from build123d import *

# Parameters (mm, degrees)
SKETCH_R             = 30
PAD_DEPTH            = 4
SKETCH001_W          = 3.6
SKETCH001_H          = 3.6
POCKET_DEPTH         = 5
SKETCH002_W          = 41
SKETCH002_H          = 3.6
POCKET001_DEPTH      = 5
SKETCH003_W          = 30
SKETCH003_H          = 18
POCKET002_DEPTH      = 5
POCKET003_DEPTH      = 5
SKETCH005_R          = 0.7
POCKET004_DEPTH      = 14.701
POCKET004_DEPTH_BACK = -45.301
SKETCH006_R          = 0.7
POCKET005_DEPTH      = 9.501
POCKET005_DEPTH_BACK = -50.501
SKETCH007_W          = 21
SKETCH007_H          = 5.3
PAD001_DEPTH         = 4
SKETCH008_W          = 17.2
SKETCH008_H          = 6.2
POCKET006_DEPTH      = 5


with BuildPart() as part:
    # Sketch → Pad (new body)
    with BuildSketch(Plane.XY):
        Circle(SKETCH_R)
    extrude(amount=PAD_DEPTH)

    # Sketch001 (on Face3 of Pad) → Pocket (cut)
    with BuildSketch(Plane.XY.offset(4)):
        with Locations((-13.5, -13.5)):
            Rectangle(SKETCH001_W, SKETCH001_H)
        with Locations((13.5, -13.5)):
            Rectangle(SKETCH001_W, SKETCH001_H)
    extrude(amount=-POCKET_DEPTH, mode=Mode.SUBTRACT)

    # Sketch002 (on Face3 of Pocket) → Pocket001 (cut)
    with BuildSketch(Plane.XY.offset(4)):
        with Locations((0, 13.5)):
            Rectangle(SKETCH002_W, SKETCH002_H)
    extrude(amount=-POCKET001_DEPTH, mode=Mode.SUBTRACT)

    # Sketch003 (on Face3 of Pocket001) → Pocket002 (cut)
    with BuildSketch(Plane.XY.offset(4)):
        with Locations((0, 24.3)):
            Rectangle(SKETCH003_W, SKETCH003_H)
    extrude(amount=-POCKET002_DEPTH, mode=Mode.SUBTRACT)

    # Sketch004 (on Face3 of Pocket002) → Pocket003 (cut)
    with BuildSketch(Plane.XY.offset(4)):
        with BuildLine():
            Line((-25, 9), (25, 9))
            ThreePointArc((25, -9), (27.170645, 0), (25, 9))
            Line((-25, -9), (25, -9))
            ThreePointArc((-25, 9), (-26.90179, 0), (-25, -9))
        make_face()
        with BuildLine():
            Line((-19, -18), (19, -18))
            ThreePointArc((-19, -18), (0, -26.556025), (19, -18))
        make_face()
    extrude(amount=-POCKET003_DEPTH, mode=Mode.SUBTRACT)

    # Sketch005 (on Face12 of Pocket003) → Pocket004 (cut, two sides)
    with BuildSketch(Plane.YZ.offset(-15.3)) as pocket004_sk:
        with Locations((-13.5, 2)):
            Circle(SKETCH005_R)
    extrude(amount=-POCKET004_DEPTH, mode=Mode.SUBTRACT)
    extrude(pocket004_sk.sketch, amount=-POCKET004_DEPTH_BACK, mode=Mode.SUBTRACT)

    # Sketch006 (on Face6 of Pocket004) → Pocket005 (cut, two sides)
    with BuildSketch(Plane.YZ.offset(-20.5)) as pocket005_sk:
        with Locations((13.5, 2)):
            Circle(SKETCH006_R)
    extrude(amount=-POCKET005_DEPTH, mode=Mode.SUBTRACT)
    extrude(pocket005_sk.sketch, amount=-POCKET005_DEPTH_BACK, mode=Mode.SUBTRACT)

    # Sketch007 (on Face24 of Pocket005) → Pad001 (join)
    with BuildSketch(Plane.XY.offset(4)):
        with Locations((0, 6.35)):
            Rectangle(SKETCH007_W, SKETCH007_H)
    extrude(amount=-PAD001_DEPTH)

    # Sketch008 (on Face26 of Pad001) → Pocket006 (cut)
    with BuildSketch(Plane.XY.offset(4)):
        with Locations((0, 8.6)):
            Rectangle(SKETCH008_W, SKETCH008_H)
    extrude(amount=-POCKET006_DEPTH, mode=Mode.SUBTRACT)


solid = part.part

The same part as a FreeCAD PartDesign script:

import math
import FreeCAD as App
import Part
import Sketcher
from FreeCAD import Vector
Q = App.Units.Quantity

doc = App.newDocument("Part")
body = doc.addObject("PartDesign::Body", "Body")

sketch1 = doc.addObject("Sketcher::SketchObject", "Sketch")
body.addObject(sketch1)
sketch1.AttachmentSupport = (doc.XY_Plane, [""])
sketch1.MapMode = "FlatFace"
sketch1.addGeometry(Part.Circle(Vector(0, 0, 0), Vector(0, 0, 1), 30), False)
sketch1.addConstraint(Sketcher.Constraint("Coincident", 0, 3, -1, 1))
sketch1.addConstraint(Sketcher.Constraint("Diameter", 0, Q("60 mm")))
pad1 = doc.addObject("PartDesign::Pad", "Pad")
body.addObject(pad1)
pad1.Profile = sketch1
pad1.Length = 4

sketch2 = doc.addObject("Sketcher::SketchObject", "Sketch001")
body.addObject(sketch2)
sketch2.AttachmentSupport = (doc.XY_Plane, [""])
sketch2.MapMode = "FlatFace"
sketch2.AttachmentOffset = App.Placement(Vector(0, 0, 4), App.Rotation())
sketch2.addGeometry(Part.LineSegment(Vector(-15.3, -11.7, 0), Vector(-15.3, -15.3, 0)), False)
sketch2.addGeometry(Part.LineSegment(Vector(-15.3, -15.3, 0), Vector(-11.7, -15.3, 0)), False)
sketch2.addGeometry(Part.LineSegment(Vector(-11.7, -15.3, 0), Vector(-11.7, -11.7, 0)), False)
sketch2.addGeometry(Part.LineSegment(Vector(-11.7, -11.7, 0), Vector(-15.3, -11.7, 0)), False)
sketch2.addGeometry(Part.LineSegment(Vector(11.7, -11.7, 0), Vector(11.7, -15.3, 0)), False)
sketch2.addGeometry(Part.LineSegment(Vector(11.7, -15.3, 0), Vector(15.3, -15.3, 0)), False)
sketch2.addGeometry(Part.LineSegment(Vector(15.3, -15.3, 0), Vector(15.3, -11.7, 0)), False)
sketch2.addGeometry(Part.LineSegment(Vector(15.3, -11.7, 0), Vector(11.7, -11.7, 0)), False)
sketch2.addConstraint(Sketcher.Constraint("Coincident", 0, 2, 1, 1))
sketch2.addConstraint(Sketcher.Constraint("Coincident", 1, 2, 2, 1))
sketch2.addConstraint(Sketcher.Constraint("Coincident", 2, 2, 3, 1))
sketch2.addConstraint(Sketcher.Constraint("Coincident", 3, 2, 0, 1))
sketch2.addConstraint(Sketcher.Constraint("Coincident", 4, 2, 5, 1))
sketch2.addConstraint(Sketcher.Constraint("Coincident", 5, 2, 6, 1))
sketch2.addConstraint(Sketcher.Constraint("Coincident", 6, 2, 7, 1))
sketch2.addConstraint(Sketcher.Constraint("Coincident", 7, 2, 4, 1))
sketch2.addConstraint(Sketcher.Constraint("Vertical", 0))
sketch2.addConstraint(Sketcher.Constraint("Horizontal", 1))
sketch2.addConstraint(Sketcher.Constraint("Vertical", 2))
sketch2.addConstraint(Sketcher.Constraint("Horizontal", 3))
sketch2.addConstraint(Sketcher.Constraint("Vertical", 4))
sketch2.addConstraint(Sketcher.Constraint("Horizontal", 5))
sketch2.addConstraint(Sketcher.Constraint("Vertical", 6))
sketch2.addConstraint(Sketcher.Constraint("Horizontal", 7))
sketch2.addConstraint(Sketcher.Constraint("Symmetric", 1, 2, 4, 2, -2))
sketch2.addConstraint(Sketcher.Constraint("Symmetric", 3, 2, 6, 2, -2))
sketch2.addConstraint(Sketcher.Constraint("Equal", 7, 0))
sketch2.addConstraint(Sketcher.Constraint("DistanceX", 1, 1, 1, 2, Q("3.6 mm")))
sketch2.addConstraint(Sketcher.Constraint("DistanceX", 0, 2, 4, 2, Q("27 mm")))
sketch2.addConstraint(Sketcher.Constraint("DistanceY", 0, 2, -1, 1, Q("15.3 mm")))
pocket1 = doc.addObject("PartDesign::Pocket", "Pocket")
body.addObject(pocket1)
pocket1.Profile = sketch2
pocket1.Length = 5

sketch3 = doc.addObject("Sketcher::SketchObject", "Sketch002")
body.addObject(sketch3)
sketch3.AttachmentSupport = (doc.XY_Plane, [""])
sketch3.MapMode = "FlatFace"
sketch3.AttachmentOffset = App.Placement(Vector(0, 0, 4), App.Rotation())
sketch3.addGeometry(Part.LineSegment(Vector(-20.5, 15.3, 0), Vector(-20.5, 11.7, 0)), False)
sketch3.addGeometry(Part.LineSegment(Vector(-20.5, 11.7, 0), Vector(20.5, 11.7, 0)), False)
sketch3.addGeometry(Part.LineSegment(Vector(20.5, 11.7, 0), Vector(20.5, 15.3, 0)), False)
sketch3.addGeometry(Part.LineSegment(Vector(20.5, 15.3, 0), Vector(-20.5, 15.3, 0)), False)
sketch3.addConstraint(Sketcher.Constraint("Coincident", 0, 2, 1, 1))
sketch3.addConstraint(Sketcher.Constraint("Coincident", 1, 2, 2, 1))
sketch3.addConstraint(Sketcher.Constraint("Coincident", 2, 2, 3, 1))
sketch3.addConstraint(Sketcher.Constraint("Coincident", 3, 2, 0, 1))
sketch3.addConstraint(Sketcher.Constraint("Vertical", 0))
sketch3.addConstraint(Sketcher.Constraint("Horizontal", 1))
sketch3.addConstraint(Sketcher.Constraint("Vertical", 2))
sketch3.addConstraint(Sketcher.Constraint("Horizontal", 3))
sketch3.addConstraint(Sketcher.Constraint("DistanceX", 1, 1, 1, 2, Q("41 mm")))
sketch3.addConstraint(Sketcher.Constraint("DistanceY", 0, 2, 0, 1, Q("3.6 mm")))
sketch3.addConstraint(Sketcher.Constraint("DistanceX", 0, 2, -1, 1, Q("20.5 mm")))
sketch3.addConstraint(Sketcher.Constraint("DistanceY", -1, 1, 0, 2, Q("11.7 mm")))
pocket2 = doc.addObject("PartDesign::Pocket", "Pocket001")
body.addObject(pocket2)
pocket2.Profile = sketch3
pocket2.Length = 5

sketch4 = doc.addObject("Sketcher::SketchObject", "Sketch003")
body.addObject(sketch4)
sketch4.AttachmentSupport = (doc.XY_Plane, [""])
sketch4.MapMode = "FlatFace"
sketch4.AttachmentOffset = App.Placement(Vector(0, 0, 4), App.Rotation())
sketch4.addGeometry(Part.LineSegment(Vector(-15, 33.3, 0), Vector(-15, 15.3, 0)), False)
sketch4.addGeometry(Part.LineSegment(Vector(-15, 15.3, 0), Vector(15, 15.3, 0)), False)
sketch4.addGeometry(Part.LineSegment(Vector(15, 15.3, 0), Vector(15, 33.3, 0)), False)
sketch4.addGeometry(Part.LineSegment(Vector(15, 33.3, 0), Vector(-15, 33.3, 0)), False)
sketch4.addConstraint(Sketcher.Constraint("Coincident", 0, 2, 1, 1))
sketch4.addConstraint(Sketcher.Constraint("Coincident", 1, 2, 2, 1))
sketch4.addConstraint(Sketcher.Constraint("Coincident", 2, 2, 3, 1))
sketch4.addConstraint(Sketcher.Constraint("Coincident", 3, 2, 0, 1))
sketch4.addConstraint(Sketcher.Constraint("Vertical", 0))
sketch4.addConstraint(Sketcher.Constraint("Horizontal", 1))
sketch4.addConstraint(Sketcher.Constraint("Vertical", 2))
sketch4.addConstraint(Sketcher.Constraint("Horizontal", 3))
sketch4.addConstraint(Sketcher.Constraint("DistanceX", 1, 1, 1, 2, Q("30 mm")))
sketch4.addConstraint(Sketcher.Constraint("DistanceY", 0, 2, 0, 1, Q("18 mm")))
sketch4.addConstraint(Sketcher.Constraint("DistanceX", 0, 2, -1, 1, Q("15 mm")))
sketch4.addConstraint(Sketcher.Constraint("DistanceY", -1, 1, 0, 2, Q("15.3 mm")))
pocket3 = doc.addObject("PartDesign::Pocket", "Pocket002")
body.addObject(pocket3)
pocket3.Profile = sketch4
pocket3.Length = 5

sketch5 = doc.addObject("Sketcher::SketchObject", "Sketch004")
body.addObject(sketch5)
sketch5.AttachmentSupport = (doc.XY_Plane, [""])
sketch5.MapMode = "FlatFace"
sketch5.AttachmentOffset = App.Placement(Vector(0, 0, 4), App.Rotation())
sketch5.addGeometry(Part.LineSegment(Vector(25, 9, 0), Vector(-25, 9, 0)), False)
sketch5.addGeometry(Part.ArcOfCircle(Part.Circle(Vector(-4.655168, 0, 0), Vector(0, 0, 1), 22.246622), math.radians(156.136705), math.radians(203.863295)), False)
sketch5.addGeometry(Part.LineSegment(Vector(-25, -9, 0), Vector(25, -9, 0)), False)
sketch5.addGeometry(Part.ArcOfCircle(Part.Circle(Vector(7.427274, 0, 0), Vector(0, 0, 1), 19.743371), math.radians(-27.119587), math.radians(27.119587)), False)
sketch5.addGeometry(Part.LineSegment(Vector(19, -18, 0), Vector(-19, -18, 0)), False)
sketch5.addGeometry(Part.ArcOfCircle(Part.Circle(Vector(0, -1.181767, 0), Vector(0, 0, 1), 25.374258), math.radians(-138.485705), math.radians(-41.514295)), False)
sketch5.addConstraint(Sketcher.Constraint("Coincident", 0, 2, 1, 1))
sketch5.addConstraint(Sketcher.Constraint("Coincident", 1, 2, 2, 1))
sketch5.addConstraint(Sketcher.Constraint("Coincident", 2, 2, 3, 1))
sketch5.addConstraint(Sketcher.Constraint("Coincident", 3, 2, 0, 1))
sketch5.addConstraint(Sketcher.Constraint("Coincident", 4, 1, 5, 2))
sketch5.addConstraint(Sketcher.Constraint("Coincident", 5, 1, 4, 2))
sketch5.addConstraint(Sketcher.Constraint("Horizontal", 0))
sketch5.addConstraint(Sketcher.Constraint("Horizontal", 2))
sketch5.addConstraint(Sketcher.Constraint("Horizontal", 4))
sketch5.addConstraint(Sketcher.Constraint("Symmetric", 0, 2, 2, 2, -1, 1))
sketch5.addConstraint(Sketcher.Constraint("PointOnObject", 1, 3, -1))
sketch5.addConstraint(Sketcher.Constraint("PointOnObject", 3, 3, -1))
sketch5.addConstraint(Sketcher.Constraint("PointOnObject", 5, 3, -2))
sketch5.addConstraint(Sketcher.Constraint("DistanceX", 0, 2, 0, 1, Q("50 mm")))
sketch5.addConstraint(Sketcher.Constraint("DistanceX", 4, 2, 4, 1, Q("38 mm")))
sketch5.addConstraint(Sketcher.Constraint("DistanceY", -1, 1, 0, 2, Q("9 mm")))
sketch5.addConstraint(Sketcher.Constraint("DistanceY", 4, 1, -1, 1, Q("18 mm")))
sketch5.addConstraint(Sketcher.Constraint("Radius", 1, Q("22.246622 mm")))
sketch5.addConstraint(Sketcher.Constraint("Radius", 3, Q("19.743371 mm")))
sketch5.addConstraint(Sketcher.Constraint("Radius", 5, Q("25.374258 mm")))
pocket4 = doc.addObject("PartDesign::Pocket", "Pocket003")
body.addObject(pocket4)
pocket4.Profile = sketch5
pocket4.Length = 5

sketch6 = doc.addObject("Sketcher::SketchObject", "Sketch005")
body.addObject(sketch6)
sketch6.AttachmentSupport = (doc.YZ_Plane, [""])
sketch6.MapMode = "FlatFace"
sketch6.AttachmentOffset = App.Placement(Vector(0, 0, -15.3), App.Rotation())
sketch6.addGeometry(Part.Circle(Vector(-13.5, 2, 0), Vector(0, 0, 1), 0.7), False)
sketch6.addConstraint(Sketcher.Constraint("Diameter", 0, Q("1.4 mm")))
sketch6.addConstraint(Sketcher.Constraint("DistanceY", -1, 1, 0, 3, Q("2 mm")))
sketch6.addConstraint(Sketcher.Constraint("DistanceX", 0, 3, -1, 1, Q("13.5 mm")))
pocket5 = doc.addObject("PartDesign::Pocket", "Pocket004")
body.addObject(pocket5)
pocket5.Profile = sketch6
pocket5.Type = "ThroughAll"
pocket5.Midplane = True

sketch7 = doc.addObject("Sketcher::SketchObject", "Sketch006")
body.addObject(sketch7)
sketch7.AttachmentSupport = (doc.YZ_Plane, [""])
sketch7.MapMode = "FlatFace"
sketch7.AttachmentOffset = App.Placement(Vector(0, 0, -20.5), App.Rotation())
sketch7.addGeometry(Part.Circle(Vector(13.5, 2, 0), Vector(0, 0, 1), 0.7), False)
sketch7.addConstraint(Sketcher.Constraint("Diameter", 0, Q("1.4 mm")))
sketch7.addConstraint(Sketcher.Constraint("DistanceY", -1, 1, 0, 3, Q("2 mm")))
sketch7.addConstraint(Sketcher.Constraint("DistanceX", -1, 1, 0, 3, Q("13.5 mm")))
pocket6 = doc.addObject("PartDesign::Pocket", "Pocket005")
body.addObject(pocket6)
pocket6.Profile = sketch7
pocket6.Type = "ThroughAll"
pocket6.Midplane = True

sketch8 = doc.addObject("Sketcher::SketchObject", "Sketch007")
body.addObject(sketch8)
sketch8.AttachmentSupport = (doc.XY_Plane, [""])
sketch8.MapMode = "FlatFace"
sketch8.AttachmentOffset = App.Placement(Vector(0, 0, 4), App.Rotation())
sketch8.addGeometry(Part.LineSegment(Vector(-10.5, 9, 0), Vector(-10.5, 3.7, 0)), False)
sketch8.addGeometry(Part.LineSegment(Vector(-10.5, 3.7, 0), Vector(10.5, 3.7, 0)), False)
sketch8.addGeometry(Part.LineSegment(Vector(10.5, 3.7, 0), Vector(10.5, 9, 0)), False)
sketch8.addGeometry(Part.LineSegment(Vector(10.5, 9, 0), Vector(-10.5, 9, 0)), False)
sketch8.addConstraint(Sketcher.Constraint("Coincident", 0, 2, 1, 1))
sketch8.addConstraint(Sketcher.Constraint("Coincident", 1, 2, 2, 1))
sketch8.addConstraint(Sketcher.Constraint("Coincident", 2, 2, 3, 1))
sketch8.addConstraint(Sketcher.Constraint("Coincident", 3, 2, 0, 1))
sketch8.addConstraint(Sketcher.Constraint("Vertical", 0))
sketch8.addConstraint(Sketcher.Constraint("Horizontal", 1))
sketch8.addConstraint(Sketcher.Constraint("Vertical", 2))
sketch8.addConstraint(Sketcher.Constraint("Horizontal", 3))
sketch8.addConstraint(Sketcher.Constraint("DistanceX", 1, 1, 1, 2, Q("21 mm")))
sketch8.addConstraint(Sketcher.Constraint("DistanceY", 0, 2, 0, 1, Q("5.3 mm")))
sketch8.addConstraint(Sketcher.Constraint("DistanceY", -1, 1, 2, 2, Q("9 mm")))
sketch8.addConstraint(Sketcher.Constraint("DistanceX", 0, 2, -1, 1, Q("10.5 mm")))
pad2 = doc.addObject("PartDesign::Pad", "Pad001")
body.addObject(pad2)
pad2.Profile = sketch8
pad2.Length = 4
pad2.Reversed = True

sketch9 = doc.addObject("Sketcher::SketchObject", "Sketch008")
body.addObject(sketch9)
sketch9.AttachmentSupport = (doc.XY_Plane, [""])
sketch9.MapMode = "FlatFace"
sketch9.AttachmentOffset = App.Placement(Vector(0, 0, 4), App.Rotation())
sketch9.addGeometry(Part.LineSegment(Vector(-8.6, 11.7, 0), Vector(-8.6, 5.5, 0)), False)
sketch9.addGeometry(Part.LineSegment(Vector(-8.6, 5.5, 0), Vector(8.6, 5.5, 0)), False)
sketch9.addGeometry(Part.LineSegment(Vector(8.6, 5.5, 0), Vector(8.6, 11.7, 0)), False)
sketch9.addGeometry(Part.LineSegment(Vector(8.6, 11.7, 0), Vector(-8.6, 11.7, 0)), False)
sketch9.addConstraint(Sketcher.Constraint("Coincident", 0, 2, 1, 1))
sketch9.addConstraint(Sketcher.Constraint("Coincident", 1, 2, 2, 1))
sketch9.addConstraint(Sketcher.Constraint("Coincident", 2, 2, 3, 1))
sketch9.addConstraint(Sketcher.Constraint("Coincident", 3, 2, 0, 1))
sketch9.addConstraint(Sketcher.Constraint("Vertical", 0))
sketch9.addConstraint(Sketcher.Constraint("Horizontal", 1))
sketch9.addConstraint(Sketcher.Constraint("Vertical", 2))
sketch9.addConstraint(Sketcher.Constraint("Horizontal", 3))
sketch9.addConstraint(Sketcher.Constraint("DistanceX", 1, 1, 1, 2, Q("17.2 mm")))
sketch9.addConstraint(Sketcher.Constraint("DistanceY", 0, 2, 0, 1, Q("6.2 mm")))
sketch9.addConstraint(Sketcher.Constraint("DistanceX", 0, 2, -1, 1, Q("8.6 mm")))
sketch9.addConstraint(Sketcher.Constraint("DistanceY", -1, 1, 0, 2, Q("5.5 mm")))
pocket7 = doc.addObject("PartDesign::Pocket", "Pocket006")
body.addObject(pocket7)
pocket7.Profile = sketch9
pocket7.Length = 5

doc.recompute()
